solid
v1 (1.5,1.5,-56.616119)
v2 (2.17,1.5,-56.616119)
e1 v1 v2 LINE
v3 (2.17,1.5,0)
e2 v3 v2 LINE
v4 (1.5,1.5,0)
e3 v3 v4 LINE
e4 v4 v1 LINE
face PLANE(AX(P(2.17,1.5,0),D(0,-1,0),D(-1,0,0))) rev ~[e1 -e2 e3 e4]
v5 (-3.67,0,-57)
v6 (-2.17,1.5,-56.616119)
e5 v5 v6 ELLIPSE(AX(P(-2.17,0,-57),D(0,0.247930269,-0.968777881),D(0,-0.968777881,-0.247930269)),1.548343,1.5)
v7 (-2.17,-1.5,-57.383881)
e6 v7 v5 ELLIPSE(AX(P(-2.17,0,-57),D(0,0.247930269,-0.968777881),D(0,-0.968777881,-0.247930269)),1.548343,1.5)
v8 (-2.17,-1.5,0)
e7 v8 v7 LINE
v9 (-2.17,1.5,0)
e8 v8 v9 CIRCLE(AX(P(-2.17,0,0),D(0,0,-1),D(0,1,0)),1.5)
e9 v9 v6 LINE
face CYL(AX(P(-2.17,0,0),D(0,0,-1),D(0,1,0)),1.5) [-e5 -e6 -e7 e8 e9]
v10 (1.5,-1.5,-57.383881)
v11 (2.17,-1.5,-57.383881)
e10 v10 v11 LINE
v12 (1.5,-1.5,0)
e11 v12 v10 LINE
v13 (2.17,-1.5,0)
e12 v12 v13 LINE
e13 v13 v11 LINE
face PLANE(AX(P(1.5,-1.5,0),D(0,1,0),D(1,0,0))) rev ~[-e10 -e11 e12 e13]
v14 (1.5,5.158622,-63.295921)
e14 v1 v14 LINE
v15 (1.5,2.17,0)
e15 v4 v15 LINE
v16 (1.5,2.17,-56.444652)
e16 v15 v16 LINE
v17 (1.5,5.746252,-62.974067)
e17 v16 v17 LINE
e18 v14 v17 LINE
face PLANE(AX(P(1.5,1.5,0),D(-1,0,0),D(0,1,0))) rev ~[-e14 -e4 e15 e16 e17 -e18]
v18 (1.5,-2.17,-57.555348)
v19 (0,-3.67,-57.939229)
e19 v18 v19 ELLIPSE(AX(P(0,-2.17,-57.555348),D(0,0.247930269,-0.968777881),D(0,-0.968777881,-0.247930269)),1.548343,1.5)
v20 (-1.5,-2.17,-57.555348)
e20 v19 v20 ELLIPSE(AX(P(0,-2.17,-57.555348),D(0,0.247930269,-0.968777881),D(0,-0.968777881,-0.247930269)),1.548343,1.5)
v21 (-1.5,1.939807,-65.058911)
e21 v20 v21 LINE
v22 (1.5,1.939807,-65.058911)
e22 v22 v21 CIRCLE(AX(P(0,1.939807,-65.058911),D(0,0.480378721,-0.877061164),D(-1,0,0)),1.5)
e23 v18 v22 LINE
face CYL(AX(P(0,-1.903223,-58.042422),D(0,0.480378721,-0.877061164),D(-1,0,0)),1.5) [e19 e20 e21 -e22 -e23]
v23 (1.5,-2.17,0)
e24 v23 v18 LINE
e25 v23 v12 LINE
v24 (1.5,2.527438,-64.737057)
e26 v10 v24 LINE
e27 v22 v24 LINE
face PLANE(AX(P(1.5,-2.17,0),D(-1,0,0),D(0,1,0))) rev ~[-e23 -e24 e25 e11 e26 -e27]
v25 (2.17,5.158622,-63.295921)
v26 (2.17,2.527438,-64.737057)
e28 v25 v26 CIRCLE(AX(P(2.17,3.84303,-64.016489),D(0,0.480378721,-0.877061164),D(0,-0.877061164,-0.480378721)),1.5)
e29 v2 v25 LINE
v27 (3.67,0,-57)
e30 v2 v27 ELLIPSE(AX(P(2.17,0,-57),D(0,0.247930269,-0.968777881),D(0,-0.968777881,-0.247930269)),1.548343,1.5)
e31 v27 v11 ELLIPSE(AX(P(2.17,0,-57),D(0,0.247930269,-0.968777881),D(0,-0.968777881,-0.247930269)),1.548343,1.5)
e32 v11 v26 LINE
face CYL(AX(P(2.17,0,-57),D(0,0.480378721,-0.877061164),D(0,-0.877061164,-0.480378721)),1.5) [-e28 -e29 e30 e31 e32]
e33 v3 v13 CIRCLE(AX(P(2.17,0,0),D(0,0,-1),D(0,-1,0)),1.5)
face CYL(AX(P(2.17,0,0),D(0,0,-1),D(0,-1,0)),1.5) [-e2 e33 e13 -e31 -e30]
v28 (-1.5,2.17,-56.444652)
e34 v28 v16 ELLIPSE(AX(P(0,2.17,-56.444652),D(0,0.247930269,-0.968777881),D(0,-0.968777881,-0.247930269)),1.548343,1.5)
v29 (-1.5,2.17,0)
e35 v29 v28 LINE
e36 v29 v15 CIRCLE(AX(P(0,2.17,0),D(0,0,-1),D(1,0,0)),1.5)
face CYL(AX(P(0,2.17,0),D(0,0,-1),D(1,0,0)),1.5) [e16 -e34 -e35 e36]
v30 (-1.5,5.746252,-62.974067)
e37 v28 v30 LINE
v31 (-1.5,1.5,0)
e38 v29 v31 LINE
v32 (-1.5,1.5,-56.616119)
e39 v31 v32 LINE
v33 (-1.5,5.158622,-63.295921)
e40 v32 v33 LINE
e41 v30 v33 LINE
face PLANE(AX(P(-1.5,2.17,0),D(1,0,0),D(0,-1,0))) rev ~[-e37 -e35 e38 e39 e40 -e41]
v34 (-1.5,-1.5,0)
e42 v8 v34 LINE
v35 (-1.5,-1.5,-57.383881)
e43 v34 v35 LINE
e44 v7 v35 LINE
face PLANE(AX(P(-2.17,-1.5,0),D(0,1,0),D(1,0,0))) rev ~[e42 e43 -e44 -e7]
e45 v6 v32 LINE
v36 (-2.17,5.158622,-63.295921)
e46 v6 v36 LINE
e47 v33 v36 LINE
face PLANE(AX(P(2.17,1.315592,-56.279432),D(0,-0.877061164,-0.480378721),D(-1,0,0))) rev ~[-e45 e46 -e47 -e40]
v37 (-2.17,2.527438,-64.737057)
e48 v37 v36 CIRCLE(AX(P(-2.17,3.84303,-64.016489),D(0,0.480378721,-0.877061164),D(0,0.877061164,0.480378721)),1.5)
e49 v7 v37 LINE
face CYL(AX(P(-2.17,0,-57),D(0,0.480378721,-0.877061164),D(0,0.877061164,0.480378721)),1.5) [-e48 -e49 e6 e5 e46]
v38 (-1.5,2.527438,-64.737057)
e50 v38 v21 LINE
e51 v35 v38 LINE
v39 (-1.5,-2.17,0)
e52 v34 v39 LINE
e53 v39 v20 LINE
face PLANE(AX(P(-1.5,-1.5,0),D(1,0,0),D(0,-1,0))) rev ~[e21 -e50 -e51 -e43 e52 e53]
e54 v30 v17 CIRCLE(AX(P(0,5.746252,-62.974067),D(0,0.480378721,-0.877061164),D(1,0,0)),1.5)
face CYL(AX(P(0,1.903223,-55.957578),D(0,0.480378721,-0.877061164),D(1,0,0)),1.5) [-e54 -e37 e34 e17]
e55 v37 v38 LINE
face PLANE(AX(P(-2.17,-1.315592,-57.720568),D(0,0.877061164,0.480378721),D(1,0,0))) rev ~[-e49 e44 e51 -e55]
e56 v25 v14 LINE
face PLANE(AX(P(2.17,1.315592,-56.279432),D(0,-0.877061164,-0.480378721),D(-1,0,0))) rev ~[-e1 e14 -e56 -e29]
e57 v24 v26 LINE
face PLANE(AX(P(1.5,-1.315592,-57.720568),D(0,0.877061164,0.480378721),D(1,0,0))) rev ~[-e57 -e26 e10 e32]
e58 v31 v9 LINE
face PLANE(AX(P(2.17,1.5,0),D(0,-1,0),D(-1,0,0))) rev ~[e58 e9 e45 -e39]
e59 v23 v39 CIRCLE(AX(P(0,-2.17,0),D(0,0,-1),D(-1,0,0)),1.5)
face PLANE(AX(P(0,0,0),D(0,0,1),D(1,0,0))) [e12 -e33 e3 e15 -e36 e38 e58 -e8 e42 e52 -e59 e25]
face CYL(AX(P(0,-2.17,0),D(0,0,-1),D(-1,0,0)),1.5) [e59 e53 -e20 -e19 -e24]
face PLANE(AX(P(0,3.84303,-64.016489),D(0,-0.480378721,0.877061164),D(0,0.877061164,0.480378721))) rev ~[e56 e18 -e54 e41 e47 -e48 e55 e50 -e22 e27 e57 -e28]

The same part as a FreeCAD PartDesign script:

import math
import FreeCAD as App
import Part
import Sketcher
from FreeCAD import Vector

doc = App.newDocument("Part")
params = doc.addObject("Spreadsheet::Sheet", "Params")
for row, (alias, value) in enumerate([
    ("sketch1_radius", "1.5 mm"),
    ("sketch1_width", "0.67 mm"),
    ("sketch2_height", "57 mm"),
    ("sketch2_length", "8 mm"),
], start=1):
    params.set(f"A{row}", alias)
    params.set(f"B{row}", "=" + value)
    params.setAlias(f"B{row}", alias)

body = doc.addObject("PartDesign::Body", "Body")

# Sketch on XY plane
sketch1 = body.newObject("Sketcher::SketchObject", "Sketch")
sketch1.AttachmentSupport = (doc.getObject("XY_Plane"), [""])
sketch1.MapMode = "FlatFace"
sketch1.addGeometry([
    Part.ArcOfCircle(Part.Circle(Vector(-2.2, 0, 0), Vector(0, 0, 1), 1.5), math.radians(90), math.radians(270)),  # 0
    Part.LineSegment(Vector(-2.2, -1.5, 0), Vector(-1.5, -1.5, 0)),  # 1
    Part.LineSegment(Vector(-1.5, -1.5, 0), Vector(-1.5, -2.2, 0)),  # 2
    Part.ArcOfCircle(Part.Circle(Vector(0, -2.2, 0), Vector(0, 0, 1), 1.5), math.radians(180), math.radians(360)),  # 3
    Part.LineSegment(Vector(1.5, -2.2, 0), Vector(1.5, -1.5, 0)),  # 4
    Part.LineSegment(Vector(1.5, -1.5, 0), Vector(2.2, -1.5, 0)),  # 5
    Part.ArcOfCircle(Part.Circle(Vector(2.2, 0, 0), Vector(0, 0, 1), 1.5), math.radians(-90), math.radians(90)),  # 6
    Part.LineSegment(Vector(2.2, 1.5, 0), Vector(1.5, 1.5, 0)),  # 7
    Part.LineSegment(Vector(1.5, 1.5, 0), Vector(1.5, 2.2, 0)),  # 8
    Part.ArcOfCircle(Part.Circle(Vector(0, 2.2, 0), Vector(0, 0, 1), 1.5), math.radians(0), math.radians(180)),  # 9
    Part.LineSegment(Vector(-1.5, 2.2, 0), Vector(-1.5, 1.5, 0)),  # 10
    Part.LineSegment(Vector(-1.5, 1.5, 0), Vector(-2.2, 1.5, 0)),  # 11
], False)
sketch1.addConstraint([
    Sketcher.Constraint("Tangent", 0, 2, 1, 1),
    Sketcher.Constraint("Coincident", 1, 2, 2, 1),
    Sketcher.Constraint("Tangent", 2, 2, 3, 1),
    Sketcher.Constraint("Tangent", 3, 2, 4, 1),
    Sketcher.Constraint("Coincident", 4, 2, 5, 1),
    Sketcher.Constraint("Tangent", 5, 2, 6, 1),
    Sketcher.Constraint("Tangent", 6, 2, 7, 1),
    Sketcher.Constraint("Coincident", 7, 2, 8, 1),
    Sketcher.Constraint("Tangent", 8, 2, 9, 1),
    Sketcher.Constraint("Tangent", 9, 2, 10, 1),
    Sketcher.Constraint("Coincident", 10, 2, 11, 1),
    Sketcher.Constraint("Tangent", 11, 2, 0, 1),
    Sketcher.Constraint("Horizontal", 1),
    Sketcher.Constraint("Vertical", 2),
    Sketcher.Constraint("Vertical", 4),
    Sketcher.Constraint("Horizontal", 5),
    Sketcher.Constraint("Horizontal", 7),
    Sketcher.Constraint("Vertical", 8),
    Sketcher.Constraint("Vertical", 10),
    Sketcher.Constraint("Horizontal", 11),
    Sketcher.Constraint("Equal", 0, 3),
    Sketcher.Constraint("Equal", 3, 6),
    Sketcher.Constraint("Equal", 6, 9),
    Sketcher.Constraint("Symmetric", 0, 3, 6, 3, -1, 1),
    Sketcher.Constraint("Symmetric", 3, 3, 9, 3, -1, 1),
    Sketcher.Constraint("Symmetric", 1, 2, 4, 2, -2),
    Sketcher.Constraint("Equal", 11, 2),
    Sketcher.Constraint("Radius", 0, 1.5),
    Sketcher.Constraint("DistanceX", 1, 1, 1, 2, 0.67),
])
sketch1.setExpression("Constraints[27]", "Params.sketch1_radius")
sketch1.setExpression("Constraints[28]", "Params.sketch1_width")

# Sketch on YZ plane
sketch2 = body.newObject("Sketcher::SketchObject", "Sketch001")
sketch2.AttachmentSupport = (doc.getObject("YZ_Plane"), [""])
sketch2.MapMode = "FlatFace"
sketch2.addGeometry([
    Part.LineSegment(Vector(0, 0, 0), Vector(0, -57, 0)),
    Part.LineSegment(Vector(0, -57, 0), Vector(4, -64, 0)),
], False)
sketch2.addConstraint([
    Sketcher.Constraint("Coincident", 0, 2, 1, 1),
    Sketcher.Constraint("Vertical", 0),
    Sketcher.Constraint("Coincident", 0, 1, -1, 1),
    Sketcher.Constraint("DistanceY", 0, 2, 0, 1, 57.0),
    Sketcher.Constraint("Distance", 1, 8.0),
    Sketcher.Constraint("DistanceX", -1, 1, 1, 2, 3.84303),
])
sketch2.setExpression("Constraints[3]", "Params.sketch2_height")
sketch2.setExpression("Constraints[4]", "Params.sketch2_length")
doc.recompute()

additivepipe = body.newObject("PartDesign::AdditivePipe", "AdditivePipe")
additivepipe.Profile = sketch1
additivepipe.Spine = (sketch2, ["Edge1", "Edge2"])
additivepipe.Transition = "Right corner"

doc.recompute()
